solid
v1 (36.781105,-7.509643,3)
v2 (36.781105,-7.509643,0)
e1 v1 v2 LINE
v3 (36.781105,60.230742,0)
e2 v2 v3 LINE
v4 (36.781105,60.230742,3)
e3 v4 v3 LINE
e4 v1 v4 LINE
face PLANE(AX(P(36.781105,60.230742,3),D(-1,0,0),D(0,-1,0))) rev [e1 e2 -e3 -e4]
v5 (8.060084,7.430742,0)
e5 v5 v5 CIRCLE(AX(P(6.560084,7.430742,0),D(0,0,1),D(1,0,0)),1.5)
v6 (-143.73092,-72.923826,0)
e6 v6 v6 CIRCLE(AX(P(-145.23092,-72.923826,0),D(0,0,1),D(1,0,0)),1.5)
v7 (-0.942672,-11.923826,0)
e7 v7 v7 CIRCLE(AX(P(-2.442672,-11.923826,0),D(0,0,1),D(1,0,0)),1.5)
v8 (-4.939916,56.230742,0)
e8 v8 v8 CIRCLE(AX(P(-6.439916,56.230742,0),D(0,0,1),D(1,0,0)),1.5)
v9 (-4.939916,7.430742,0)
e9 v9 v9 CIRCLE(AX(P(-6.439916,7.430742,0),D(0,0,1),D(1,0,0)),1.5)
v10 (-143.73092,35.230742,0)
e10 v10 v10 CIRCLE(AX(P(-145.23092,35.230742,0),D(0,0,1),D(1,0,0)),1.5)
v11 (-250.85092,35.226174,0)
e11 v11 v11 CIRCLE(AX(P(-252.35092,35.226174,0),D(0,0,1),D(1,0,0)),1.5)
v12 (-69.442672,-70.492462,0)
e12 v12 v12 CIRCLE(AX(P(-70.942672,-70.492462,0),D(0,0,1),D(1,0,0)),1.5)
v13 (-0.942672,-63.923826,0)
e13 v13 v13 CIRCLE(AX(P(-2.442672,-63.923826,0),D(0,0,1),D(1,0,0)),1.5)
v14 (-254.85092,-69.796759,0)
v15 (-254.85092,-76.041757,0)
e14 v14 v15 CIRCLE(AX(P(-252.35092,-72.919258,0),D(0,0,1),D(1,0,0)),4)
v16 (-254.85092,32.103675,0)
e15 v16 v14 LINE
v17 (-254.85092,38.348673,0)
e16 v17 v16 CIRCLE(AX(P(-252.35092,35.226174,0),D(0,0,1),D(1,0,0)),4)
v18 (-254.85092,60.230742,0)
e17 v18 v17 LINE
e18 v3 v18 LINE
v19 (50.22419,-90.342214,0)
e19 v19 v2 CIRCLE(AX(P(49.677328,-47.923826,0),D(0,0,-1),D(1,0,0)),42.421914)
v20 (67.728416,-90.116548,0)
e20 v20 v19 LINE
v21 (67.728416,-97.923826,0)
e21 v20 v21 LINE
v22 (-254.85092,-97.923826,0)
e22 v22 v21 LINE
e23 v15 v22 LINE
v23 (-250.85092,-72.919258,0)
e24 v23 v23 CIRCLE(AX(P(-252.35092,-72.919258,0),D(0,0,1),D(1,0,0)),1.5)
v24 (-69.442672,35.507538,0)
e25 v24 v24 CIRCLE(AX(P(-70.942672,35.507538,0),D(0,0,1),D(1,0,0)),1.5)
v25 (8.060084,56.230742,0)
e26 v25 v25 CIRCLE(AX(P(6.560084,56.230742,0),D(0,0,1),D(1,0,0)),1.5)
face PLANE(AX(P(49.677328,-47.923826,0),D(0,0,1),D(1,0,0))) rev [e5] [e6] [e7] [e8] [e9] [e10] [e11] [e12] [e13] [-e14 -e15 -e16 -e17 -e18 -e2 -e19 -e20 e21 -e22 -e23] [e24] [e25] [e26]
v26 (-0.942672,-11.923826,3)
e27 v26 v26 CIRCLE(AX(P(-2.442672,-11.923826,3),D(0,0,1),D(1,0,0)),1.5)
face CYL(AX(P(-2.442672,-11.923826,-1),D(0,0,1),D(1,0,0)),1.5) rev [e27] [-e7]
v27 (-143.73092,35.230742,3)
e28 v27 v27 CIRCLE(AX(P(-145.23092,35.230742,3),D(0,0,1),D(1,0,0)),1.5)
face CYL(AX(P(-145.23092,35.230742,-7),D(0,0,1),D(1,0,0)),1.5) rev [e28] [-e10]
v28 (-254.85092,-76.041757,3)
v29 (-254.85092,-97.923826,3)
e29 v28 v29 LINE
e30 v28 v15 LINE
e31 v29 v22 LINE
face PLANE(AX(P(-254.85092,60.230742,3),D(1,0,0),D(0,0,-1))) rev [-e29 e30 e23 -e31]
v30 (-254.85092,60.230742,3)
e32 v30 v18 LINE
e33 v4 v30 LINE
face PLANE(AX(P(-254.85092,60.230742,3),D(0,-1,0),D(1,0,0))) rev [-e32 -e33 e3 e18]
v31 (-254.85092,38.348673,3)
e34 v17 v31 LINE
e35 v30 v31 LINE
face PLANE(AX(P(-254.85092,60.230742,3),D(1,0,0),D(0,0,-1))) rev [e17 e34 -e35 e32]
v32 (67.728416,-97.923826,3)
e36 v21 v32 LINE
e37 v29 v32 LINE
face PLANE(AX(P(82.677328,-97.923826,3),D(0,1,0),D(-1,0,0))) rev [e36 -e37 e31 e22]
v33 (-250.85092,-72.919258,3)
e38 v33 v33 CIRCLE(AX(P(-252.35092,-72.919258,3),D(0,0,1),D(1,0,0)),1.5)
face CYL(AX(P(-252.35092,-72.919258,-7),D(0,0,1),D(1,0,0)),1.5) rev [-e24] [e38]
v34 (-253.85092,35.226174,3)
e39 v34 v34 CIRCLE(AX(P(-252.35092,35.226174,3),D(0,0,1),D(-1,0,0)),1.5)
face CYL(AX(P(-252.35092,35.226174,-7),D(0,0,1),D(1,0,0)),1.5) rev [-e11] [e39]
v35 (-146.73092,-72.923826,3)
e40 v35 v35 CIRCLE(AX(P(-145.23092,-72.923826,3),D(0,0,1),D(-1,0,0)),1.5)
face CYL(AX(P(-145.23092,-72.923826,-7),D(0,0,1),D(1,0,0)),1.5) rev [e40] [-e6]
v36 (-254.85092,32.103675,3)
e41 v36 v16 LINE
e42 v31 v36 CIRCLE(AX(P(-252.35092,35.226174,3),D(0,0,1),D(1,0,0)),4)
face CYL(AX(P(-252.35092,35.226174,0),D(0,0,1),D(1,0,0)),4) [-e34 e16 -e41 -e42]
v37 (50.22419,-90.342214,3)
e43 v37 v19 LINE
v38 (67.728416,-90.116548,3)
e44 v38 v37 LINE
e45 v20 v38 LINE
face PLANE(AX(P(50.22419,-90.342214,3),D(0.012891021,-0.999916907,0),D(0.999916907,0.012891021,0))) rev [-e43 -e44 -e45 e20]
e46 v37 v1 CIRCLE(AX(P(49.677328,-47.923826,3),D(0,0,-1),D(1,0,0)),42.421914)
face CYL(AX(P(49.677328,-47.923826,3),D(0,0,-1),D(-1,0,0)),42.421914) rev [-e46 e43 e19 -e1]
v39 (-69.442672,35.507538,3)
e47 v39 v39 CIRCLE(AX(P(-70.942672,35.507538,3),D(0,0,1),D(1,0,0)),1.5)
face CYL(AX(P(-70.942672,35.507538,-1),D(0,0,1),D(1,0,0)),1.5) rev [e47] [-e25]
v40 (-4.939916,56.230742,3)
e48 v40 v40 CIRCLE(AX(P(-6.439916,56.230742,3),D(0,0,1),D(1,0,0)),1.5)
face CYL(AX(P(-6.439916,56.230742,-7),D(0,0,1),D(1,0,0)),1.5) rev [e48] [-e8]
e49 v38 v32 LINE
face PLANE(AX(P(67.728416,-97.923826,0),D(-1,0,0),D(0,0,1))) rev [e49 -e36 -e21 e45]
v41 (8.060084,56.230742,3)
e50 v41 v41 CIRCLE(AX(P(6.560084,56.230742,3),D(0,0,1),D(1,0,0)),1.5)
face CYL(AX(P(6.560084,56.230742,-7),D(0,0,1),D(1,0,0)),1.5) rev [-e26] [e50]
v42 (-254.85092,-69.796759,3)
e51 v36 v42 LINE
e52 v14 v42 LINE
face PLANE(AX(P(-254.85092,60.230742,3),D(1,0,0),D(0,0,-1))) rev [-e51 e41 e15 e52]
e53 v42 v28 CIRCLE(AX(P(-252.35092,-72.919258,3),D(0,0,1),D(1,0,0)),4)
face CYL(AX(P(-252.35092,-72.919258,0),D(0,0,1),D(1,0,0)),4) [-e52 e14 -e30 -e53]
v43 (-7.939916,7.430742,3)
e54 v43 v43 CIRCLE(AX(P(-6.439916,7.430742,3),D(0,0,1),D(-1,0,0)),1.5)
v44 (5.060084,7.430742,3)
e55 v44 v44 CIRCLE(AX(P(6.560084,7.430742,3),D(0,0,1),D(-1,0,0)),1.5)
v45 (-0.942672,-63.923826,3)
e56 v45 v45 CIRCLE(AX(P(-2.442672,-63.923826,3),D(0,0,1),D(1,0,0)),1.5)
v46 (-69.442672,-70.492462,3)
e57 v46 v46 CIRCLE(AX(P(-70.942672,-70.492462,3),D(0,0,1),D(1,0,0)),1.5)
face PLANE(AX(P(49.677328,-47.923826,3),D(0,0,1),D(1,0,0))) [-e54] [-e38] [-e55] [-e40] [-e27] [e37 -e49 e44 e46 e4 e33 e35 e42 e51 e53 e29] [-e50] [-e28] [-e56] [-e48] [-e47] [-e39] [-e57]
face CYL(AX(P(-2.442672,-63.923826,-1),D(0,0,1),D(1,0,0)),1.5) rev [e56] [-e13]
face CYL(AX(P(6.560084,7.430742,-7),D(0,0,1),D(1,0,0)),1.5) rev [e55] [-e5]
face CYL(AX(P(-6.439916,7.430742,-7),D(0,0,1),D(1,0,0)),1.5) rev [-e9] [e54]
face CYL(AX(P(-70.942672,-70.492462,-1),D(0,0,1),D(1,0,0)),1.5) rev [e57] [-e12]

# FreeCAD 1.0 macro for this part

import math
import FreeCAD as App
import Part
import Sketcher


def add_polygon(sketch, points):
    """Adds a closed chain of lines whose ends are joined by coincident constraints."""
    first, n = sketch.GeometryCount, len(points)
    for a, b in zip(points, points[1:] + points[:1]):
        sketch.addGeometry(Part.LineSegment(App.Vector(*a, 0), App.Vector(*b, 0)), False)
    for i in range(n):
        sketch.addConstraint(Sketcher.Constraint("Coincident", first + i, 2, first + (i + 1) % n, 1))

doc = App.newDocument("Part")
body = doc.addObject("PartDesign::Body", "Body")

sketch1 = body.newObject("Sketcher::SketchObject", "Sketch")
sketch1.AttachmentSupport = (doc.getObject("XY_Plane"), [""])
sketch1.MapMode = "FlatFace"
sketch1.addGeometry([
    Part.LineSegment(App.Vector(37, 60, 0), App.Vector(-255, 60, 0)),
    Part.LineSegment(App.Vector(-255, 60, 0), App.Vector(-255, -98, 0)),
    Part.LineSegment(App.Vector(-255, -98, 0), App.Vector(83, -98, 0)),
    Part.LineSegment(App.Vector(83, -98, 0), App.Vector(83, -90, 0)),
    Part.LineSegment(App.Vector(83, -90, 0), App.Vector(50, -90, 0)),
    Part.ArcOfCircle(Part.Circle(App.Vector(50, -48, 0), App.Vector(0, 0, 1), 42), math.radians(108), math.radians(271)),
    Part.LineSegment(App.Vector(37, -8, 0), App.Vector(37, 60, 0)),
], False)
sketch1.addConstraint([
    Sketcher.Constraint("Coincident", 0, 2, 1, 1),
    Sketcher.Constraint("Coincident", 1, 2, 2, 1),
    Sketcher.Constraint("Coincident", 2, 2, 3, 1),
    Sketcher.Constraint("Coincident", 3, 2, 4, 1),
    Sketcher.Constraint("Tangent", 4, 2, 5, 2),
    Sketcher.Constraint("Coincident", 5, 1, 6, 1),
    Sketcher.Constraint("Coincident", 6, 2, 0, 1),
    Sketcher.Constraint("Horizontal", 0),
    Sketcher.Constraint("Vertical", 1),
    Sketcher.Constraint("Horizontal", 2),
    Sketcher.Constraint("Vertical", 3),
    Sketcher.Constraint("Vertical", 6),
    Sketcher.Constraint("DistanceY", 3, 1, 3, 2, 8.0),
    Sketcher.Constraint("DistanceY", 1, 2, 5, 3, 50.0),
    Sketcher.Constraint("DistanceX", 5, 3, 2, 2, 33.0),
    Sketcher.Constraint("Radius", 5, 42.421914),
    Sketcher.Constraint("DistanceX", 2, 1, 2, 2, 337.528248),
    Sketcher.Constraint("DistanceX", 0, 2, 0, 1, 291.632025),
    Sketcher.Constraint("DistanceY", 1, 2, 1, 1, 158.154568),
    Sketcher.Constraint("DistanceX", -1, 1, 5, 3, 49.677328),
    Sketcher.Constraint("DistanceY", 5, 3, -1, 1, 47.923826),
])
pad1 = body.newObject("PartDesign::Pad", "Pad")
pad1.Profile = sketch1
pad1.Length = 3

sketch2 = body.newObject("Sketcher::SketchObject", "Sketch001")
sketch2.AttachmentSupport = (doc.getObject("XY_Plane"), [""])
sketch2.MapMode = "FlatFace"
sketch2.AttachmentOffset = App.Placement(App.Vector(0, 0, 3), App.Rotation())
add_polygon(sketch2, [(68, -90), (68, -98), (83, -98), (83, -90)])
sketch2.addConstraint([
    Sketcher.Constraint("Vertical", 0),
    Sketcher.Constraint("Horizontal", 1),
    Sketcher.Constraint("Vertical", 2),
    Sketcher.Constraint("DistanceY", 2, 1, 2, 2, 8.0),
    Sketcher.Constraint("DistanceX", 1, 1, 1, 2, 14.948912),
    Sketcher.Constraint("DistanceY", 0, 2, 0, 1, 7.807277),
    Sketcher.Constraint("DistanceX", -1, 1, 1, 2, 82.677328),
    Sketcher.Constraint("DistanceY", 3, 2, -1, 1, 90.116548),
])
pocket1 = body.newObject("PartDesign::Pocket", "Pocket")
pocket1.Profile = sketch2
pocket1.Length = 3

sketch3 = body.newObject("Sketcher::SketchObject", "Sketch002")
sketch3.AttachmentSupport = (doc.getObject("XY_Plane"), [""])
sketch3.MapMode = "FlatFace"
sketch3.AttachmentOffset = App.Placement(App.Vector(0, 0, 3), App.Rotation())
sketch3.addGeometry([
    Part.Circle(App.Vector(-2.4, -11.9, 0), App.Vector(0, 0, 1), 1.5),
    Part.Circle(App.Vector(-2.4, -63.9, 0), App.Vector(0, 0, 1), 1.5),
], False)
sketch3.addConstraint([
    Sketcher.Constraint("Equal", 0, 1),
    Sketcher.Constraint("Vertical", 0, 3, 1, 3),
    Sketcher.Constraint("Diameter", 0, 3.0),
    Sketcher.Constraint("DistanceY", 1, 3, 0, 3, 52.0),
    Sketcher.Constraint("DistanceX", 0, 3, -1, 1, 2.442672),
    Sketcher.Constraint("DistanceY", 0, 3, -1, 1, 11.923826),
])
pocket2 = body.newObject("PartDesign::Pocket", "Pocket001")
pocket2.Profile = sketch3
pocket2.Length = 4

sketch4 = body.newObject("Sketcher::SketchObject", "Sketch003")
sketch4.AttachmentSupport = (doc.getObject("XY_Plane"), [""])
sketch4.MapMode = "FlatFace"
sketch4.AttachmentOffset = App.Placement(App.Vector(0, 0, 3), App.Rotation())
sketch4.addGeometry([
    Part.Circle(App.Vector(-70.9, 35.5, 0), App.Vector(0, 0, 1), 1.5),
    Part.Circle(App.Vector(-70.9, -70.5, 0), App.Vector(0, 0, 1), 1.5),
], False)
sketch4.addConstraint([
    Sketcher.Constraint("Equal", 0, 1),
    Sketcher.Constraint("Vertical", 0, 3, 1, 3),
    Sketcher.Constraint("Diameter", 0, 3.0),
    Sketcher.Constraint("DistanceY", 1, 3, 0, 3, 106.0),
    Sketcher.Constraint("DistanceX", 0, 3, -1, 1, 70.942672),
    Sketcher.Constraint("DistanceY", -1, 1, 0, 3, 35.507538),
])
pocket3 = body.newObject("PartDesign::Pocket", "Pocket002")
pocket3.Profile = sketch4
pocket3.Length = 4

sketch5 = body.newObject("Sketcher::SketchObject", "Sketch004")
sketch5.AttachmentSupport = (doc.getObject("XY_Plane"), [""])
sketch5.MapMode = "FlatFace"
sketch5.AttachmentOffset = App.Placement(App.Vector(0, 0, 3), App.Rotation())
sketch5.addGeometry([
    Part.Circle(App.Vector(-6.4, 56.2, 0), App.Vector(0, 0, 1), 1.5),
    Part.Circle(App.Vector(6.6, 56.2, 0), App.Vector(0, 0, 1), 1.5),
    Part.Circle(App.Vector(6.6, 7.4, 0), App.Vector(0, 0, 1), 1.5),
    Part.Circle(App.Vector(-6.4, 7.4, 0), App.Vector(0, 0, 1), 1.5),
], False)
sketch5.addConstraint([
    Sketcher.Constraint("Equal", 0, 1),
    Sketcher.Constraint("Equal", 1, 2),
    Sketcher.Constraint("Equal", 2, 3),
    Sketcher.Constraint("Horizontal", 0, 3, 1, 3),
    Sketcher.Constraint("Horizontal", 2, 3, 3, 3),
    Sketcher.Constraint("Vertical", 1, 3, 2, 3),
    Sketcher.Constraint("Vertical", 0, 3, 3, 3),
    Sketcher.Constraint("Diameter", 0, 3.0),
    Sketcher.Constraint("DistanceX", 0, 3, 1, 3, 13.0),
    Sketcher.Constraint("DistanceY", 2, 3, 1, 3, 48.8),
    Sketcher.Constraint("DistanceX", 0, 3, -1, 1, 6.439916),
    Sketcher.Constraint("DistanceY", -1, 1, 0, 3, 56.230742),
])
pocket4 = body.newObject("PartDesign::Pocket", "Pocket003")
pocket4.Profile = sketch5
pocket4.Length = 10

sketch6 = body.newObject("Sketcher::SketchObject", "Sketch005")
sketch6.AttachmentSupport = (doc.getObject("XY_Plane"), [""])
sketch6.MapMode = "FlatFace"
sketch6.AttachmentOffset = App.Placement(App.Vector(0, 0, 3), App.Rotation())
sketch6.addGeometry([
    Part.Circle(App.Vector(-145.2, 35.2, 0), App.Vector(0, 0, 1), 1.5),
    Part.Circle(App.Vector(-145.2, -72.9, 0), App.Vector(0, 0, 1), 1.5),
], False)
sketch6.addConstraint([
    Sketcher.Constraint("Equal", 0, 1),
    Sketcher.Constraint("Vertical", 0, 3, 1, 3),
    Sketcher.Constraint("Diameter", 0, 3.0),
    Sketcher.Constraint("DistanceX", 0, 3, -1, 1, 145.23092),
    Sketcher.Constraint("DistanceY", -1, 1, 0, 3, 35.230742),
    Sketcher.Constraint("DistanceY", 1, 3, -1, 1, 72.923826),
])
pocket5 = body.newObject("PartDesign::Pocket", "Pocket004")
pocket5.Profile = sketch6
pocket5.Length = 10

sketch7 = body.newObject("Sketcher::SketchObject", "Sketch006")
sketch7.AttachmentSupport = (doc.getObject("XY_Plane"), [""])
sketch7.MapMode = "FlatFace"
sketch7.AttachmentOffset = App.Placement(App.Vector(0, 0, 3), App.Rotation())
sketch7.addGeometry([
    Part.Circle(App.Vector(-252.4, -72.9, 0), App.Vector(0, 0, 1), 1.5),
    Part.Circle(App.Vector(-252.4, 35.2, 0), App.Vector(0, 0, 1), 1.5),
], False)
sketch7.addConstraint([
    Sketcher.Constraint("Equal", 0, 1),
    Sketcher.Constraint("Vertical", 0, 3, 1, 3),
    Sketcher.Constraint("Diameter", 0, 3.0),
    Sketcher.Constraint("DistanceX", 0, 3, -1, 1, 252.35092),
    Sketcher.Constraint("DistanceY", 0, 3, -1, 1, 72.919258),
    Sketcher.Constraint("DistanceY", -1, 1, 1, 3, 35.226174),
])
pocket6 = body.newObject("PartDesign::Pocket", "Pocket005")
pocket6.Profile = sketch7
pocket6.Length = 10

sketch8 = body.newObject("Sketcher::SketchObject", "Sketch007")
sketch8.AttachmentSupport = (doc.getObject("XY_Plane"), [""])
sketch8.MapMode = "FlatFace"
sketch8.AttachmentOffset = App.Placement(App.Vector(0, 0, 3), App.Rotation())
sketch8.addGeometry([
    Part.Circle(App.Vector(-252.4, -72.9, 0), App.Vector(0, 0, 1), 4),
    Part.Circle(App.Vector(-252.4, -72.9, 0), App.Vector(0, 0, 1), 1.5),
    Part.Circle(App.Vector(-252.4, 35.2, 0), App.Vector(0, 0, 1), 4),
    Part.Circle(App.Vector(-252.4, 35.2, 0), App.Vector(0, 0, 1), 1.5),
], False)
sketch8.addConstraint([
    Sketcher.Constraint("Coincident", 1, 3, 0, 3),
    Sketcher.Constraint("Coincident", 3, 3, 2, 3),
    Sketcher.Constraint("Equal", 0, 2),
    Sketcher.Constraint("Equal", 1, 3),
    Sketcher.Constraint("Vertical", 1, 3, 2, 3),
    Sketcher.Constraint("Diameter", 0, 8.0),
    Sketcher.Constraint("Diameter", 1, 3.0),
    Sketcher.Constraint("DistanceX", 0, 3, -1, 1, 252.35092),
    Sketcher.Constraint("DistanceY", 0, 3, -1, 1, 72.919258),
    Sketcher.Constraint("DistanceY", -1, 1, 2, 3, 35.226174),
])
pad2 = body.newObject("PartDesign::Pad", "Pad001")
pad2.Profile = sketch8
pad2.Length = 3
pad2.Reversed = True

doc.recompute()
